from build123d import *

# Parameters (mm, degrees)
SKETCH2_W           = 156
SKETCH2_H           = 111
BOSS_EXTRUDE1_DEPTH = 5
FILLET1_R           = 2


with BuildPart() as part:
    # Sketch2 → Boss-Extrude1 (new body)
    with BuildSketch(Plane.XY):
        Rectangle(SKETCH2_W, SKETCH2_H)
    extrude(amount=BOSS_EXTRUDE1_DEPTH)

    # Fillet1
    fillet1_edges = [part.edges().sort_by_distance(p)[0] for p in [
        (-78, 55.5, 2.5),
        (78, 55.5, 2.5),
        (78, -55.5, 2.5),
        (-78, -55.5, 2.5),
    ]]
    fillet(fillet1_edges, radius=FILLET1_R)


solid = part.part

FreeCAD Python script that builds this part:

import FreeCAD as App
import Part
import Sketcher
Q = App.Units.Quantity


def edges_at(feature, points):
    """Names of the edges that pass closest to the given points."""
    edges = feature.Shape.Edges
    near = lambda p: min(range(len(edges)), key=lambda i: edges[i].distToShape(Part.Vertex(*p))[0])
    return sorted({f"Edge{near(p) + 1}" for p in points})

doc = App.newDocument("Part")
params = doc.addObject("Spreadsheet::Sheet", "Params")
for row, (alias, value) in enumerate([
    ("sketch1_width", "156 mm"),
    ("sketch1_height", "111 mm"),
    ("pad1_length", "5 mm"),
    ("fillet_radius", "2 mm"),
], start=1):
    params.set(f"A{row}", alias)
    params.set(f"B{row}", "=" + value)
    params.setAlias(f"B{row}", alias)

body = doc.addObject("PartDesign::Body", "Body")

sketch1 = body.newObject("Sketcher::SketchObject", "Sketch")
sketch1.AttachmentSupport = (doc.getObject("XY_Plane"), [""])
sketch1.MapMode = "FlatFace"
sketch1.addGeometry([
    Part.LineSegment(App.Vector(-78, 56, 0), App.Vector(-78, -56, 0)),
    Part.LineSegment(App.Vector(-78, -56, 0), App.Vector(78, -56, 0)),
    Part.LineSegment(App.Vector(78, -56, 0), App.Vector(78, 56, 0)),
    Part.LineSegment(App.Vector(78, 56, 0), App.Vector(-78, 56, 0)),
], False)
sketch1.addConstraint([
    Sketcher.Constraint("Coincident", 0, 2, 1, 1),
    Sketcher.Constraint("Coincident", 1, 2, 2, 1),
    Sketcher.Constraint("Coincident", 2, 2, 3, 1),
    Sketcher.Constraint("Coincident", 3, 2, 0, 1),
    Sketcher.Constraint("Vertical", 0),
    Sketcher.Constraint("Horizontal", 1),
    Sketcher.Constraint("Vertical", 2),
    Sketcher.Constraint("Horizontal", 3),
    Sketcher.Constraint("Symmetric", 0, 2, 2, 2, -1, 1),
    Sketcher.Constraint("DistanceX", 1, 1, 1, 2, Q("156 mm")),
    Sketcher.Constraint("DistanceY", 0, 2, 0, 1, Q("111 mm")),
])
sketch1.setExpression("Constraints[9]", "Params.sketch1_width")
sketch1.setExpression("Constraints[10]", "Params.sketch1_height")
pad1 = body.newObject("PartDesign::Pad", "Pad")
pad1.Profile = sketch1
pad1.setExpression("Length", "Params.pad1_length")
doc.recompute()

fillet = body.newObject("PartDesign::Fillet", "Fillet")
fillet.Base = (pad1, edges_at(pad1, [
    (-78, 55.5, 2.5),
    (78, 55.5, 2.5),
    (78, -55.5, 2.5),
    (-78, -55.5, 2.5),
]))
fillet.setExpression("Radius", "Params.fillet_radius")

doc.recompute()
